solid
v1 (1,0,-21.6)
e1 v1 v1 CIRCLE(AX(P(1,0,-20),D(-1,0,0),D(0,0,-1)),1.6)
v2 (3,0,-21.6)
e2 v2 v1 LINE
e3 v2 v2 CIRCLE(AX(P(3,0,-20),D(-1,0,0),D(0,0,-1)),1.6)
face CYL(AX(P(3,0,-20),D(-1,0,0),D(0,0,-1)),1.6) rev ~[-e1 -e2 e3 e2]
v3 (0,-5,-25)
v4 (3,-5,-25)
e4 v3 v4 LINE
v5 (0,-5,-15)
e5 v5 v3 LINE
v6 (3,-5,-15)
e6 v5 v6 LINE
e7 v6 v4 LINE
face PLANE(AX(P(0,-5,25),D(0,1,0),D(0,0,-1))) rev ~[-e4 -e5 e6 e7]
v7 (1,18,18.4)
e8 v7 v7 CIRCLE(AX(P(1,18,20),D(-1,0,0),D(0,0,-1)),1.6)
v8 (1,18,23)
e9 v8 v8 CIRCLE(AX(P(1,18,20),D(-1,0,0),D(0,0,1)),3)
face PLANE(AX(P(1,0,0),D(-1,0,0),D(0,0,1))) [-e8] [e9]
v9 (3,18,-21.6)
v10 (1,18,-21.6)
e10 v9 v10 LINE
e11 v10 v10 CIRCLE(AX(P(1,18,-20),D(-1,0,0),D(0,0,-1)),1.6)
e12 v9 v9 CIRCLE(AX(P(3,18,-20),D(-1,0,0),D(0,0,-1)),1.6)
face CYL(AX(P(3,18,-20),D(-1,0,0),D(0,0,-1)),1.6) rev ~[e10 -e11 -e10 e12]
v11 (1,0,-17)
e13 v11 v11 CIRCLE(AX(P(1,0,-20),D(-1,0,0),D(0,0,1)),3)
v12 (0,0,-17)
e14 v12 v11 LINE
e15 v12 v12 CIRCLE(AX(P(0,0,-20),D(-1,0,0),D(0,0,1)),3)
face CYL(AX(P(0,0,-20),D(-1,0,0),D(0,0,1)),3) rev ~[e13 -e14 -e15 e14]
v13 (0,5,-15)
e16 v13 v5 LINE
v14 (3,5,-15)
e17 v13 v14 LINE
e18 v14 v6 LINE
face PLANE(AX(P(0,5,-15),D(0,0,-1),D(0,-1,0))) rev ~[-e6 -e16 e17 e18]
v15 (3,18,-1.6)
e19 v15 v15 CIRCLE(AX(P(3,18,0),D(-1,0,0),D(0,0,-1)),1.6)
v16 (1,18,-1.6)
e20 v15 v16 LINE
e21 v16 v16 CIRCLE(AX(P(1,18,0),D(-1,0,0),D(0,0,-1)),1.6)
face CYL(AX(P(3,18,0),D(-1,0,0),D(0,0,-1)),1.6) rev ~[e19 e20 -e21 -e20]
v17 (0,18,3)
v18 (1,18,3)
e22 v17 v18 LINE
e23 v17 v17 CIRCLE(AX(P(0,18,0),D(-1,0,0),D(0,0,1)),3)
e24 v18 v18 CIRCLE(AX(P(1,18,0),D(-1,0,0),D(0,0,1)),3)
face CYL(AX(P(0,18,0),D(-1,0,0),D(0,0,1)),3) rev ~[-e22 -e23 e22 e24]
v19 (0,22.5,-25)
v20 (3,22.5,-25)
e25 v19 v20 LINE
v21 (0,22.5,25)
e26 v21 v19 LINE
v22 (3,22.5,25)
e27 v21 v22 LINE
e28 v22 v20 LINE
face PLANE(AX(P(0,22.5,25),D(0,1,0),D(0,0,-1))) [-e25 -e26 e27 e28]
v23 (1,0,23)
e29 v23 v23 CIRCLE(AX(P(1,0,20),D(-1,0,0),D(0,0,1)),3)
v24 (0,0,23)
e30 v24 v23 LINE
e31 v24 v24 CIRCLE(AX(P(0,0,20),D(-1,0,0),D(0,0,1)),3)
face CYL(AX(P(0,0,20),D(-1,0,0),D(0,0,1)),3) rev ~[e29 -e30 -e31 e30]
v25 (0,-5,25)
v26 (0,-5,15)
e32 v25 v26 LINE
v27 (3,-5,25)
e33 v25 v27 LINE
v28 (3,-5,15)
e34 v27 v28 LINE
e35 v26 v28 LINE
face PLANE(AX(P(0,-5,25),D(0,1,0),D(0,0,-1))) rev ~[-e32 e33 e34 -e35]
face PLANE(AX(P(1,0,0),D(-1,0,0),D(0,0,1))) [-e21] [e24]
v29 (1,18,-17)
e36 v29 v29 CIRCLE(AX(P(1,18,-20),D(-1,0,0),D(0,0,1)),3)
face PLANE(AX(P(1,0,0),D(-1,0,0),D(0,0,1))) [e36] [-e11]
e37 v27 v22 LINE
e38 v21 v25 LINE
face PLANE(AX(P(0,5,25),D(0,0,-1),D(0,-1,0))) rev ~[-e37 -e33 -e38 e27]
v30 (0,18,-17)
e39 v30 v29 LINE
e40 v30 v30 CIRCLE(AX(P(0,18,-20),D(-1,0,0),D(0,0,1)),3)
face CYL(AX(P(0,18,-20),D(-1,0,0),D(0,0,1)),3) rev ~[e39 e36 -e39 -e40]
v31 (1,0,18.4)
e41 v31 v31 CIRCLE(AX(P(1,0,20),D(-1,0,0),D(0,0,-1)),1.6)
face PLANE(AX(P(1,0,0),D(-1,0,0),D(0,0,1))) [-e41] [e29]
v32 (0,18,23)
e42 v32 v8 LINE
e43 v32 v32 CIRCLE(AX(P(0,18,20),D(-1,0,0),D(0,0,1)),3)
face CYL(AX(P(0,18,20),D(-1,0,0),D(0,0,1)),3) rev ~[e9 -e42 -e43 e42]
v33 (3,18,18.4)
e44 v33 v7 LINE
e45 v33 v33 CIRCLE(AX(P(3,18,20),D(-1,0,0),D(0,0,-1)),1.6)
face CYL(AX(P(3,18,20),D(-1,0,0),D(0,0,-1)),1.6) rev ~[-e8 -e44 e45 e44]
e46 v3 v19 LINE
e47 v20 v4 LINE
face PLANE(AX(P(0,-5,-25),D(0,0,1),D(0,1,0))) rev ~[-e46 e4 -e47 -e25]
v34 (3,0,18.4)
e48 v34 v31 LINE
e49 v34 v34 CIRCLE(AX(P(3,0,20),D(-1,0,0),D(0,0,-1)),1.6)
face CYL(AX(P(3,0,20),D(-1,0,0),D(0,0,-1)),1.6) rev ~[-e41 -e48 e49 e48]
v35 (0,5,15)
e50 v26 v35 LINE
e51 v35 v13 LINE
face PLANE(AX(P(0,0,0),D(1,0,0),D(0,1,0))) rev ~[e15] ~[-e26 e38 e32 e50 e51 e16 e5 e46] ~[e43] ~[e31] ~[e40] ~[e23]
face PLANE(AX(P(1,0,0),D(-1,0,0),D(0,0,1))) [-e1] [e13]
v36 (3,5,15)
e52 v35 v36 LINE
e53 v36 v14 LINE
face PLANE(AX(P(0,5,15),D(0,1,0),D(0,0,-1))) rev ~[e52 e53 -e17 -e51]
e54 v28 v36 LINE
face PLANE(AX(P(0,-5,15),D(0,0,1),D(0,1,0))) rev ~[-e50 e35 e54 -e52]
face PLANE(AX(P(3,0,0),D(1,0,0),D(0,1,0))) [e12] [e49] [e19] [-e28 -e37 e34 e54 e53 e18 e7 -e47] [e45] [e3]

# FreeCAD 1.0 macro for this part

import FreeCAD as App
import Part
import Sketcher
from FreeCAD import Vector


def add_polygon(sketch, points):
    """Adds a closed chain of lines whose ends are joined by coincident constraints."""
    first, n = sketch.GeometryCount, len(points)
    for a, b in zip(points, points[1:] + points[:1]):
        sketch.addGeometry(Part.LineSegment(App.Vector(*a, 0), App.Vector(*b, 0)), False)
    for i in range(n):
        sketch.addConstraint(Sketcher.Constraint("Coincident", first + i, 2, first + (i + 1) % n, 1))

doc = App.newDocument("Part")
body = doc.addObject("PartDesign::Body", "Body")

sketch1 = doc.addObject("Sketcher::SketchObject", "Sketch")
body.addObject(sketch1)
sketch1.AttachmentSupport = (doc.YZ_Plane, [""])
sketch1.MapMode = "FlatFace"
add_polygon(sketch1, [(-5, 25), (-5, -25), (22, -25), (22, 25)])
sketch1.addConstraint([
    Sketcher.Constraint("Vertical", 0),
    Sketcher.Constraint("Horizontal", 1),
    Sketcher.Constraint("Vertical", 2),
    Sketcher.Constraint("Horizontal", 3),
    Sketcher.Constraint("DistanceY", 0, 2, 0, 1, 50.0),
    Sketcher.Constraint("DistanceX", 1, 1, 1, 2, 27.5),
    Sketcher.Constraint("DistanceX", 0, 2, -1, 1, 5.0),
    Sketcher.Constraint("DistanceY", 0, 2, -1, 1, 25.0),
])
pad1 = doc.addObject("PartDesign::Pad", "Pad")
body.addObject(pad1)
pad1.Profile = sketch1
pad1.Length = 3

sketch2 = doc.addObject("Sketcher::SketchObject", "Sketch001")
body.addObject(sketch2)
sketch2.AttachmentSupport = (doc.YZ_Plane, [""])
sketch2.MapMode = "FlatFace"
sketch2.AttachmentOffset = App.Placement(Vector(0, 0, 3), App.Rotation())
sketch2.addGeometry([
    Part.Circle(Vector(0, 20, 0), Vector(0, 0, 1), 1.6),
    Part.Circle(Vector(0, -20, 0), Vector(0, 0, 1), 1.6),
    Part.Circle(Vector(18, 20, 0), Vector(0, 0, 1), 1.6),
    Part.Circle(Vector(18, 0, 0), Vector(0, 0, 1), 1.6),
    Part.Circle(Vector(18, -20, 0), Vector(0, 0, 1), 1.6),
], False)
sketch2.addConstraint([
    Sketcher.Constraint("Equal", 0, 1),
    Sketcher.Constraint("Equal", 1, 2),
    Sketcher.Constraint("Equal", 2, 3),
    Sketcher.Constraint("Equal", 3, 4),
    Sketcher.Constraint("Symmetric", 0, 3, 1, 3, -1, 1),
    Sketcher.Constraint("Symmetric", 2, 3, 4, 3, -1),
    Sketcher.Constraint("PointOnObject", 0, 3, -2),
    Sketcher.Constraint("PointOnObject", 3, 3, -1),
    Sketcher.Constraint("Horizontal", 0, 3, 2, 3),
    Sketcher.Constraint("Vertical", 2, 3, 3, 3),
    Sketcher.Constraint("Diameter", 0, 3.2),
    Sketcher.Constraint("DistanceY", -1, 1, 0, 3, 20.0),
    Sketcher.Constraint("DistanceX", -1, 1, 2, 3, 18.0),
])
doc.recompute()
hole = doc.addObject("PartDesign::Hole", "Hole")
body.addObject(hole)
hole.Profile = sketch2
hole.ThreadType = "None"
hole.Diameter = 3.2
hole.DepthType = "ThroughAll"

sketch3 = doc.addObject("Sketcher::SketchObject", "Sketch002")
body.addObject(sketch3)
sketch3.AttachmentSupport = (doc.YZ_Plane, [""])
sketch3.MapMode = "FlatFace"
sketch3.addGeometry([
    Part.Circle(Vector(0, -20, 0), Vector(0, 0, 1), 3),
    Part.Circle(Vector(0, 20, 0), Vector(0, 0, 1), 3),
], False)
sketch3.addConstraint([
    Sketcher.Constraint("Equal", 0, 1),
    Sketcher.Constraint("Symmetric", 0, 3, 1, 3, -1, 1),
    Sketcher.Constraint("PointOnObject", 0, 3, -2),
    Sketcher.Constraint("Diameter", 0, 6.0),
    Sketcher.Constraint("DistanceY", 0, 3, -1, 1, 20.0),
])
pocket1 = doc.addObject("PartDesign::Pocket", "Pocket")
body.addObject(pocket1)
pocket1.Profile = sketch3
pocket1.Length = 1
pocket1.Reversed = True

sketch4 = doc.addObject("Sketcher::SketchObject", "Sketch003")
body.addObject(sketch4)
sketch4.AttachmentSupport = (doc.YZ_Plane, [""])
sketch4.MapMode = "FlatFace"
sketch4.addGeometry([
    Part.Circle(Vector(18, -20, 0), Vector(0, 0, 1), 3),
    Part.Circle(Vector(18, 0, 0), Vector(0, 0, 1), 3),
    Part.Circle(Vector(18, 0, 0), Vector(0, 0, 1), 1.6),
    Part.Circle(Vector(18, 20, 0), Vector(0, 0, 1), 3),
], False)
sketch4.addConstraint([
    Sketcher.Constraint("Coincident", 2, 3, 1, 3),
    Sketcher.Constraint("Equal", 0, 1),
    Sketcher.Constraint("Equal", 1, 3),
    Sketcher.Constraint("Symmetric", 0, 3, 3, 3, -1),
    Sketcher.Constraint("PointOnObject", 1, 3, -1),
    Sketcher.Constraint("Vertical", 0, 3, 1, 3),
    Sketcher.Constraint("Diameter", 0, 6.0),
    Sketcher.Constraint("Diameter", 2, 3.2),
    Sketcher.Constraint("DistanceX", -1, 1, 0, 3, 18.0),
    Sketcher.Constraint("DistanceY", 0, 3, -1, 1, 20.0),
])
pocket2 = doc.addObject("PartDesign::Pocket", "Pocket001")
body.addObject(pocket2)
pocket2.Profile = sketch4
pocket2.Length = 1
pocket2.Reversed = True

sketch5 = doc.addObject("Sketcher::SketchObject", "Sketch004")
body.addObject(sketch5)
sketch5.AttachmentSupport = (doc.YZ_Plane, [""])
sketch5.MapMode = "FlatFace"
add_polygon(sketch5, [(-5, 15), (5, 15), (5, -15), (-5, -15)])
sketch5.addConstraint([
    Sketcher.Constraint("Horizontal", 0),
    Sketcher.Constraint("Vertical", 1),
    Sketcher.Constraint("Horizontal", 2),
    Sketcher.Constraint("Vertical", 3),
    Sketcher.Constraint("Symmetric", 0, 2, 2, 2, -1, 1),
    Sketcher.Constraint("DistanceX", 0, 1, 0, 2, 10.0),
    Sketcher.Constraint("DistanceY", 1, 2, 1, 1, 30.0),
])
pocket3 = doc.addObject("PartDesign::Pocket", "Pocket002")
body.addObject(pocket3)
pocket3.Profile = sketch5
pocket3.Length = 3
pocket3.Reversed = True

doc.recompute()
